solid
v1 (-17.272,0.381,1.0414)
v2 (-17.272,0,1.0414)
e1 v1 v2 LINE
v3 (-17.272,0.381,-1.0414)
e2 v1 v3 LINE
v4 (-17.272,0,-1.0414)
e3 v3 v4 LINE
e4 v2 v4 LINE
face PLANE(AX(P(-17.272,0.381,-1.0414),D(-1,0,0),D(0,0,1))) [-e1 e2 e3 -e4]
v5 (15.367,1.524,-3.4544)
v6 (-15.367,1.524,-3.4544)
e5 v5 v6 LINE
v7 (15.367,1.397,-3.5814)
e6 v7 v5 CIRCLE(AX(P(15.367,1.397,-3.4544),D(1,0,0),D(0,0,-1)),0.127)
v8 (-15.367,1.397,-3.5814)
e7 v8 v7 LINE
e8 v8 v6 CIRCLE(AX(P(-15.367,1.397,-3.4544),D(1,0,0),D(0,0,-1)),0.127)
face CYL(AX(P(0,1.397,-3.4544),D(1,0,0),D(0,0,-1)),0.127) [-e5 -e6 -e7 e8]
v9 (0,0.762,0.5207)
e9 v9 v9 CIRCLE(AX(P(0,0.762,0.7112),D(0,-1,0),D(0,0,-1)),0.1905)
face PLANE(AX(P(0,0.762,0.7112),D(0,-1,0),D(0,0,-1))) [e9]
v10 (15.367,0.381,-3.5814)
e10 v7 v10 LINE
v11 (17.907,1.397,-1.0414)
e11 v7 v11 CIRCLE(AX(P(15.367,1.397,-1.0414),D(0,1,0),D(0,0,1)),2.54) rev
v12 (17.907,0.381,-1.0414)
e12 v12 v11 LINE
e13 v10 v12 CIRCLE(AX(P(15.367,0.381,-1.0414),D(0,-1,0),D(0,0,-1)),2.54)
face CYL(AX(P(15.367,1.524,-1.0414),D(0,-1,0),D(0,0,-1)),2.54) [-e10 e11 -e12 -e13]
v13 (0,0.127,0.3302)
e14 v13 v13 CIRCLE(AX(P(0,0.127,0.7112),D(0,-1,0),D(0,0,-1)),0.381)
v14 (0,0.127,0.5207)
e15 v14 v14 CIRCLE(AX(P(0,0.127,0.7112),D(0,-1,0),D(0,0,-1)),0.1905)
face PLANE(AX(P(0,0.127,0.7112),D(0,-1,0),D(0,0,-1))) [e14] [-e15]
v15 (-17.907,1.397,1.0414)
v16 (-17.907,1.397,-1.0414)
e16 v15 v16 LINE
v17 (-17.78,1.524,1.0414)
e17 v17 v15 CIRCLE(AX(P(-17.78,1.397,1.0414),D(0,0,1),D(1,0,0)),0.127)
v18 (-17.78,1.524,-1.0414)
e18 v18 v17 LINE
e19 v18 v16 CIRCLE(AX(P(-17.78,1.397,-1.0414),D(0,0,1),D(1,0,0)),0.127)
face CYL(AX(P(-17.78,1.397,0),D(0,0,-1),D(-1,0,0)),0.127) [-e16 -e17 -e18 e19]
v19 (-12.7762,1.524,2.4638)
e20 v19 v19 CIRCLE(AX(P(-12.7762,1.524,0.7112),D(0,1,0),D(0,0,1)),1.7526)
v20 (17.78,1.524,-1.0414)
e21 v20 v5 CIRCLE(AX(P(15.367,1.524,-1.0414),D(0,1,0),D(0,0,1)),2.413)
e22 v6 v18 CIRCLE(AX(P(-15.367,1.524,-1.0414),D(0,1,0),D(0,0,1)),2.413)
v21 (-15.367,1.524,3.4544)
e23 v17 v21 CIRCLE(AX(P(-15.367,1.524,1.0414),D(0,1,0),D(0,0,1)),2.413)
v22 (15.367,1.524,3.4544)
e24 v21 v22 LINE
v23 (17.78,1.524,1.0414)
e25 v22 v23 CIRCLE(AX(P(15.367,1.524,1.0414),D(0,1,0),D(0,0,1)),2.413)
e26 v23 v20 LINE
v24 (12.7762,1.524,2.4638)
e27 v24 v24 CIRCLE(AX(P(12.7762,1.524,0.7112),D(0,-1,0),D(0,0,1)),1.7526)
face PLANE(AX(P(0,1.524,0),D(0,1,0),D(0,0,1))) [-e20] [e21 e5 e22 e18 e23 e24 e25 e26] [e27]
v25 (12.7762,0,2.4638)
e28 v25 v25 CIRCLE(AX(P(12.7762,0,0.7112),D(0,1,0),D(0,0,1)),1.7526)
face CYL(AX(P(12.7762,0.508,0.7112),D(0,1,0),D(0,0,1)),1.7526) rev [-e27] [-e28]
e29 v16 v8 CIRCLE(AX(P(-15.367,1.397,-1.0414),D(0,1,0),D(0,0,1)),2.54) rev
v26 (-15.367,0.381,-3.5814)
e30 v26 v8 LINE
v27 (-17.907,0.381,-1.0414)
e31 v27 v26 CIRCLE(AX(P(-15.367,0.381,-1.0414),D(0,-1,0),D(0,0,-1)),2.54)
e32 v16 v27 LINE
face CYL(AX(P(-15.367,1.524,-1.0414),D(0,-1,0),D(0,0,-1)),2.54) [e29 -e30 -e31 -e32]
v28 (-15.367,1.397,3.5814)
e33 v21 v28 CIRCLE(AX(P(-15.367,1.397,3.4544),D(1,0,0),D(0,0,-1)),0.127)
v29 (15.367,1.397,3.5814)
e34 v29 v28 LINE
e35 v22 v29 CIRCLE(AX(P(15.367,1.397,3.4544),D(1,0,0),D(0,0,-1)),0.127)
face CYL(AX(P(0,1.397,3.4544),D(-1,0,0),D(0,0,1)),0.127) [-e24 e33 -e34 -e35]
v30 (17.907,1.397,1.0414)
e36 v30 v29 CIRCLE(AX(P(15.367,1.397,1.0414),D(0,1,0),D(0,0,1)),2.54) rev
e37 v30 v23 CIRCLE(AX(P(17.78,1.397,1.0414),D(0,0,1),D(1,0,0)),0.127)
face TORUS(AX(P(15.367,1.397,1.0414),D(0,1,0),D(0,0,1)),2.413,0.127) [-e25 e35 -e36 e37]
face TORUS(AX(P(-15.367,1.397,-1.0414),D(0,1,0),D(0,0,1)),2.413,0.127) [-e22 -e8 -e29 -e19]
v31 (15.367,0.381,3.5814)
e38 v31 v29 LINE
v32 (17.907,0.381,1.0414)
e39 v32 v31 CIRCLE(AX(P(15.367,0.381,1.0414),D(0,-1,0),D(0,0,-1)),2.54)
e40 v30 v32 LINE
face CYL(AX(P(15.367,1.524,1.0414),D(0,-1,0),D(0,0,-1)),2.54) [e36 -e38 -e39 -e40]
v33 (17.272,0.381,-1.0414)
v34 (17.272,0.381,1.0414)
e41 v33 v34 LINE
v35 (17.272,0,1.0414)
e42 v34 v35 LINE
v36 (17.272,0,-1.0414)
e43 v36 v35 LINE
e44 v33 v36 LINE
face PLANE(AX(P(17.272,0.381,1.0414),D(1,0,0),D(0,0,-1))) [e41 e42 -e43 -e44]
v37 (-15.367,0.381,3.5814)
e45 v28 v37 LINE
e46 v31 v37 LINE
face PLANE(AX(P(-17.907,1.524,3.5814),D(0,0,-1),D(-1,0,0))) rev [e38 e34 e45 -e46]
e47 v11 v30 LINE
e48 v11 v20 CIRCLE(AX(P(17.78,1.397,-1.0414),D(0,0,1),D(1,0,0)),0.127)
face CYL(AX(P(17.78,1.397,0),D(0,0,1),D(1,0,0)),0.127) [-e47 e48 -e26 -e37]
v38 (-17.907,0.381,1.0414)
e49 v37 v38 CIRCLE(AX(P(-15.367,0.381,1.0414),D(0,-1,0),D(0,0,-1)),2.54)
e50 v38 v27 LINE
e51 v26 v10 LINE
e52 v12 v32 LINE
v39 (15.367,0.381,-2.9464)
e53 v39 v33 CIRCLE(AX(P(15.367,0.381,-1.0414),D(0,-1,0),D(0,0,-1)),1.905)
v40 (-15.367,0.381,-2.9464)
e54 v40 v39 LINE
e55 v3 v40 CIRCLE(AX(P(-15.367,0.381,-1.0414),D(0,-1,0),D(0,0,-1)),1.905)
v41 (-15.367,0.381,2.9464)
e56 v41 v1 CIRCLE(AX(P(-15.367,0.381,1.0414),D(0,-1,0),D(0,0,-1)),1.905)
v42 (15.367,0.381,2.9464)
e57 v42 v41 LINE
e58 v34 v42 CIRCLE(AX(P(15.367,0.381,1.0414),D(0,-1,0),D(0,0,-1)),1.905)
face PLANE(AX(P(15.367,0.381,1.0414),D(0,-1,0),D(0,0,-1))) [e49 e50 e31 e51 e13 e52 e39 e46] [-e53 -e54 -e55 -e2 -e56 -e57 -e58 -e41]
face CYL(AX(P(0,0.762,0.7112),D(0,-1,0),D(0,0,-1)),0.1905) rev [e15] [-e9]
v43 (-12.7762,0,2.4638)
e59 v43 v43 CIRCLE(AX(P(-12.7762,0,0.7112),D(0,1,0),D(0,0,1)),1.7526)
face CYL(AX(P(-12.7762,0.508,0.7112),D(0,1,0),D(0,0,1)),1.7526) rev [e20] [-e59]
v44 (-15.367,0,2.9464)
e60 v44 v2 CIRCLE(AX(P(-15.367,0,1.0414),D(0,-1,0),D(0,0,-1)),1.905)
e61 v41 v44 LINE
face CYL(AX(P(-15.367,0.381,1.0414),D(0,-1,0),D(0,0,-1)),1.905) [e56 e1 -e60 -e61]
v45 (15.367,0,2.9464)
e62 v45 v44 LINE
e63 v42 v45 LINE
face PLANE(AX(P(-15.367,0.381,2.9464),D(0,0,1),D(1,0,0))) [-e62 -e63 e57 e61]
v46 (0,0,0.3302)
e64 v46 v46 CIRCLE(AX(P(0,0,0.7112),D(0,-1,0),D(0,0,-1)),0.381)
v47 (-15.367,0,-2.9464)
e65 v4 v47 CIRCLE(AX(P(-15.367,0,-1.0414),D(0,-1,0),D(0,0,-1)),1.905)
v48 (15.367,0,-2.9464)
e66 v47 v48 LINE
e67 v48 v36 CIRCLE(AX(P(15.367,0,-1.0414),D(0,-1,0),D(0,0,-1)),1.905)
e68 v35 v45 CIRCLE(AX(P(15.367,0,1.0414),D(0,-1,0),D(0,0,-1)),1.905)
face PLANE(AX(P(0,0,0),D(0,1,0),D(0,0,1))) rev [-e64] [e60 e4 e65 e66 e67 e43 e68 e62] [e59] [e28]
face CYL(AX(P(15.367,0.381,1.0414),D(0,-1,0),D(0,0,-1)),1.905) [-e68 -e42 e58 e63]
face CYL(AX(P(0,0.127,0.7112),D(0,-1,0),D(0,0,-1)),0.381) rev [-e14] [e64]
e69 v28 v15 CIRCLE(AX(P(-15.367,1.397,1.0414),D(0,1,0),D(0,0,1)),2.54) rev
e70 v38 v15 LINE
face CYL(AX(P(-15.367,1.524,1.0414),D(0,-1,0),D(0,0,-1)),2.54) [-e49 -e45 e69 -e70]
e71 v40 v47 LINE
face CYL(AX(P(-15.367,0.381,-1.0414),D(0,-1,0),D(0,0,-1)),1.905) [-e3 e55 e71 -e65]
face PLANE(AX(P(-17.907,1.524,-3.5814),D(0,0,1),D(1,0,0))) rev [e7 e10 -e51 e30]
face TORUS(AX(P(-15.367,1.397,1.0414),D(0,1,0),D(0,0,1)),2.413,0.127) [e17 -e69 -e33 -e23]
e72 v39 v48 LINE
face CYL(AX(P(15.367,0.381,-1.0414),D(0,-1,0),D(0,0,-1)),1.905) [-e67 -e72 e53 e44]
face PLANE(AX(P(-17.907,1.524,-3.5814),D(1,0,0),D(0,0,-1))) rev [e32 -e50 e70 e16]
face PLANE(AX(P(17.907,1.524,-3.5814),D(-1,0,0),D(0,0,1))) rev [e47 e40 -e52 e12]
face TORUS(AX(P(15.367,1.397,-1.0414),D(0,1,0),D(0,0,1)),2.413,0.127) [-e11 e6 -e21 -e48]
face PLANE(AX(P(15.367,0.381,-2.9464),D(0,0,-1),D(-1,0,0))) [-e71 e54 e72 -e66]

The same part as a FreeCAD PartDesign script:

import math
import FreeCAD as App
import Part
import Sketcher

V = App.Vector
Q = App.Units.Quantity


def edges_at(feature, points):
    """Names of the edges that pass closest to the given points."""
    edges = feature.Shape.Edges
    near = lambda p: min(range(len(edges)), key=lambda i: edges[i].distToShape(Part.Vertex(*p))[0])
    return sorted({f"Edge{near(p) + 1}" for p in points})


def add_polygon(sketch, points):
    """Adds a closed chain of lines whose ends are joined by coincident constraints."""
    first, n = sketch.GeometryCount, len(points)
    for a, b in zip(points, points[1:] + points[:1]):
        sketch.addGeometry(Part.LineSegment(App.Vector(*a, 0), App.Vector(*b, 0)), False)
    for i in range(n):
        sketch.addConstraint(Sketcher.Constraint("Coincident", first + i, 2, first + (i + 1) % n, 1))

doc = App.newDocument("Part")
body = doc.addObject("PartDesign::Body", "Body")

# Sketch on XZ plane
sketch1 = body.newObject("Sketcher::SketchObject", "Sketch")
sketch1.AttachmentSupport = (doc.getObject("XZ_Plane"), [""])
sketch1.MapMode = "FlatFace"
add_polygon(sketch1, [(-18, -4), (-18, 4), (18, 4), (18, -4)])  # lines 0-3
sketch1.addConstraint(Sketcher.Constraint("Vertical", 0))
sketch1.addConstraint(Sketcher.Constraint("Horizontal", 1))
sketch1.addConstraint(Sketcher.Constraint("Vertical", 2))
sketch1.addConstraint(Sketcher.Constraint("Horizontal", 3))
sketch1.addConstraint(Sketcher.Constraint("Symmetric", 0, 2, 2, 2, -1, 1))
sketch1.addConstraint(Sketcher.Constraint("DistanceX", 1, 1, 1, 2, Q("1.41 in")))
sketch1.addConstraint(Sketcher.Constraint("DistanceY", 0, 1, 0, 2, Q("0.282 in")))
pad1 = body.newObject("PartDesign::Pad", "Pad")
pad1.Profile = sketch1
pad1.Length = Q("0.06 in")
pad1.Reversed = True
doc.recompute()

fillet = body.newObject("PartDesign::Fillet", "Fillet")
fillet.Base = (pad1, edges_at(pad1, [
    (-17.907, 0.762, -3.581),
    (17.907, 0.762, -3.581),
    (17.907, 0.762, 3.581),
    (-17.907, 0.762, 3.581),
]))
fillet.Radius = Q("0.1 in")
doc.recompute()

fillet2 = body.newObject("PartDesign::Fillet", "Fillet001")
fillet2.Base = (fillet, edges_at(fillet, [
    (-17.907, 1.524, 0),
    (0, 1.524, -3.581),
    (0, 1.524, 3.581),
    (17.907, 1.524, 0),
    (17.163, 1.524, 2.837),
    (17.163, 1.524, -2.837),
    (-17.163, 1.524, 2.837),
    (-17.163, 1.524, -2.837),
]))
fillet2.Radius = Q("0.005 in")

# Sketch on XZ plane
sketch2 = body.newObject("Sketcher::SketchObject", "Sketch001")
sketch2.AttachmentSupport = (doc.getObject("XZ_Plane"), [""])
sketch2.MapMode = "FlatFace"
sketch2.AttachmentOffset = App.Placement(V(0, 0, -0.015 * 25.4), App.Rotation())
sketch2.addGeometry(Part.LineSegment(V(-15.37, 2.95, 0), V(-15.37, 3.2, 0)), False)
sketch2.addGeometry(Part.ArcOfCircle(Part.Circle(V(-15.37, 1.04, 0), V(0, 0, 1), 2.16), math.radians(90), math.radians(180)), False)
sketch2.addGeometry(Part.LineSegment(V(-17.53, 1.04, 0), V(-17.53, -1.04, 0)), False)
sketch2.addGeometry(Part.ArcOfCircle(Part.Circle(V(-15.37, -1.04, 0), V(0, 0, 1), 2.16), math.radians(180), math.radians(270)), False)
sketch2.addGeometry(Part.LineSegment(V(-15.37, -3.2, 0), V(-15.37, -2.95, 0)), False)
sketch2.addGeometry(Part.ArcOfCircle(Part.Circle(V(-15.37, -1.04, 0), V(0, 0, 1), 1.91), math.radians(-180), math.radians(-90)), False)
sketch2.addGeometry(Part.LineSegment(V(-17.27, -1.04, 0), V(-17.27, 1.04, 0)), False)
sketch2.addGeometry(Part.ArcOfCircle(Part.Circle(V(-15.37, 1.04, 0), V(0, 0, 1), 1.91), math.radians(90), math.radians(180)), False)
sketch2.addConstraint(Sketcher.Constraint("Coincident", 0, 2, 1, 1))
sketch2.addConstraint(Sketcher.Constraint("Tangent", 1, 2, 2, 1))
sketch2.addConstraint(Sketcher.Constraint("Tangent", 2, 2, 3, 1))
sketch2.addConstraint(Sketcher.Constraint("Coincident", 3, 2, 4, 1))
sketch2.addConstraint(Sketcher.Constraint("Coincident", 4, 2, 5, 2))
sketch2.addConstraint(Sketcher.Constraint("Tangent", 5, 1, 6, 1))
sketch2.addConstraint(Sketcher.Constraint("Tangent", 6, 2, 7, 2))
sketch2.addConstraint(Sketcher.Constraint("Coincident", 7, 1, 0, 1))
sketch2.addConstraint(Sketcher.Constraint("Vertical", 0))
sketch2.addConstraint(Sketcher.Constraint("Vertical", 2))
sketch2.addConstraint(Sketcher.Constraint("Vertical", 4))
sketch2.addConstraint(Sketcher.Constraint("Vertical", 6))
sketch2.addConstraint(Sketcher.Constraint("Coincident", 5, 3, 3, 3))
sketch2.addConstraint(Sketcher.Constraint("Coincident", 7, 3, 1, 3))
sketch2.addConstraint(Sketcher.Constraint("Equal", 1, 3))
sketch2.addConstraint(Sketcher.Constraint("Symmetric", 0, 2, 3, 2, -1))
sketch2.addConstraint(Sketcher.Constraint("Vertical", 7, 3, 0, 2))
sketch2.addConstraint(Sketcher.Constraint("Radius", 1, Q("0.085 in")))
sketch2.addConstraint(Sketcher.Constraint("Radius", 5, Q("0.075 in")))
sketch2.addConstraint(Sketcher.Constraint("DistanceY", 2, 2, 2, 1, Q("0.082 in")))
sketch2.addConstraint(Sketcher.Constraint("DistanceX", 1, 2, -1, 1, Q("0.69 in")))
pad2 = body.newObject("PartDesign::Pad", "Pad001")
pad2.Profile = sketch2
pad2.Length = Q("0.015 in")
doc.recompute()

mirrored = body.newObject("PartDesign::Mirrored", "Mirrored")
mirrored.Originals = [pad2]
mirrored.MirrorPlane = (doc.getObject("YZ_Plane"), [""])
body.Tip = mirrored

# Sketch on XZ plane
sketch3 = body.newObject("Sketcher::SketchObject", "Sketch002")
sketch3.AttachmentSupport = (doc.getObject("XZ_Plane"), [""])
sketch3.MapMode = "FlatFace"
sketch3.AttachmentOffset = App.Placement(V(0, 0, -0.06 * 25.4), App.Rotation())
sketch3.addGeometry(Part.Circle(V(-12.8, 0.7, 0), V(0, 0, 1), 1.3), False)
sketch3.addConstraint(Sketcher.Constraint("Diameter", 0, Q("0.101 in")))
sketch3.addConstraint(Sketcher.Constraint("DistanceX", 0, 3, -1, 1, Q("0.503 in")))
sketch3.addConstraint(Sketcher.Constraint("DistanceY", -1, 1, 0, 3, Q("0.028 in")))
pocket1 = body.newObject("PartDesign::Pocket", "Pocket")
pocket1.Profile = sketch3
pocket1.Length = Q("0.1 in")
pocket1.Reversed = True

# Sketch on XZ plane
sketch4 = body.newObject("Sketcher::SketchObject", "Sketch003")
sketch4.AttachmentSupport = (doc.getObject("XZ_Plane"), [""])
sketch4.MapMode = "FlatFace"
sketch4.AttachmentOffset = App.Placement(V(0, 0, -0.06 * 25.4), App.Rotation())
sketch4.addGeometry(Part.Circle(V(-12.8, 0.7, 0), V(0, 0, 1), 1.8), False)
sketch4.addConstraint(Sketcher.Constraint("Diameter", 0, Q("0.138 in")))
sketch4.addConstraint(Sketcher.Constraint("DistanceX", 0, 3, -1, 1, Q("0.503 in")))
sketch4.addConstraint(Sketcher.Constraint("DistanceY", -1, 1, 0, 3, Q("0.028 in")))
pocket2 = body.newObject("PartDesign::Pocket", "Pocket001")
pocket2.Profile = sketch4
pocket2.Length = Q("0.04 in")
pocket2.Reversed = True
doc.recompute()

mirrored2 = body.newObject("PartDesign::Mirrored", "Mirrored001")
mirrored2.Originals = [pocket1, pocket2]
mirrored2.MirrorPlane = (doc.getObject("YZ_Plane"), [""])
body.Tip = mirrored2

# Sketch on XZ plane
sketch5 = body.newObject("Sketcher::SketchObject", "Sketch004")
sketch5.AttachmentSupport = (doc.getObject("XZ_Plane"), [""])
sketch5.MapMode = "FlatFace"
sketch5.AttachmentOffset = App.Placement(V(0, 0, -0.015 * 25.4), App.Rotation())
sketch5.addGeometry(Part.LineSegment(V(17.9, -1, 0), V(17.9, 1, 0)), False)
sketch5.addGeometry(Part.ArcOfCircle(Part.Circle(V(15.4, 1, 0), V(0, 0, 1), 2.5), math.radians(0), math.radians(90)), False)
sketch5.addGeometry(Part.LineSegment(V(15.4, 3.6, 0), V(-15.4, 3.6, 0)), False)
sketch5.addGeometry(Part.ArcOfCircle(Part.Circle(V(-15.4, 1, 0), V(0, 0, 1), 2.5), math.radians(90), math.radians(180)), False)
sketch5.addGeometry(Part.LineSegment(V(-17.9, 1, 0), V(-17.9, -1, 0)), False)
sketch5.addGeometry(Part.ArcOfCircle(Part.Circle(V(-15.4, -1, 0), V(0, 0, 1), 2.5), math.radians(-180), math.radians(-90)), False)
sketch5.addGeometry(Part.LineSegment(V(-15.4, -3.6, 0), V(15.4, -3.6, 0)), False)
sketch5.addGeometry(Part.ArcOfCircle(Part.Circle(V(15.4, -1, 0), V(0, 0, 1), 2.5), math.radians(-90), math.radians(0)), False)
sketch5.addGeometry(Part.LineSegment(V(-15.4, 2.9, 0), V(15.4, 2.9, 0)), False)
sketch5.addGeometry(Part.ArcOfCircle(Part.Circle(V(15.4, 1, 0), V(0, 0, 1), 1.9), math.radians(0), math.radians(90)), False)
sketch5.addGeometry(Part.LineSegment(V(17.3, 1, 0), V(17.3, -1, 0)), False)
sketch5.addGeometry(Part.ArcOfCircle(Part.Circle(V(15.4, -1, 0), V(0, 0, 1), 1.9), math.radians(-90), math.radians(0)), False)
sketch5.addGeometry(Part.LineSegment(V(15.4, -2.9, 0), V(-15.4, -2.9, 0)), False)
sketch5.addGeometry(Part.ArcOfCircle(Part.Circle(V(-15.4, -1, 0), V(0, 0, 1), 1.9), math.radians(-180), math.radians(-90)), False)
sketch5.addGeometry(Part.LineSegment(V(-17.3, -1, 0), V(-17.3, 1, 0)), False)
sketch5.addGeometry(Part.ArcOfCircle(Part.Circle(V(-15.4, 1, 0), V(0, 0, 1), 1.9), math.radians(90), math.radians(180)), False)
sketch5.addConstraint(Sketcher.Constraint("Tangent", 0, 2, 1, 1))
sketch5.addConstraint(Sketcher.Constraint("Tangent", 1, 2, 2, 1))
sketch5.addConstraint(Sketcher.Constraint("Tangent", 2, 2, 3, 1))
sketch5.addConstraint(Sketcher.Constraint("Tangent", 3, 2, 4, 1))
sketch5.addConstraint(Sketcher.Constraint("Tangent", 4, 2, 5, 1))
sketch5.addConstraint(Sketcher.Constraint("Tangent", 5, 2, 6, 1))
sketch5.addConstraint(Sketcher.Constraint("Tangent", 6, 2, 7, 1))
sketch5.addConstraint(Sketcher.Constraint("Tangent", 7, 2, 0, 1))
sketch5.addConstraint(Sketcher.Constraint("Tangent", 8, 2, 9, 2))
sketch5.addConstraint(Sketcher.Constraint("Tangent", 9, 1, 10, 1))
sketch5.addConstraint(Sketcher.Constraint("Tangent", 10, 2, 11, 2))
sketch5.addConstraint(Sketcher.Constraint("Tangent", 11, 1, 12, 1))
sketch5.addConstraint(Sketcher.Constraint("Tangent", 12, 2, 13, 2))
sketch5.addConstraint(Sketcher.Constraint("Tangent", 13, 1, 14, 1))
sketch5.addConstraint(Sketcher.Constraint("Tangent", 14, 2, 15, 2))
sketch5.addConstraint(Sketcher.Constraint("Tangent", 15, 1, 8, 1))
sketch5.addConstraint(Sketcher.Constraint("Vertical", 0))
sketch5.addConstraint(Sketcher.Constraint("Horizontal", 2))
sketch5.addConstraint(Sketcher.Constraint("Vertical", 4))
sketch5.addConstraint(Sketcher.Constraint("Horizontal", 6))
sketch5.addConstraint(Sketcher.Constraint("Horizontal", 8))
sketch5.addConstraint(Sketcher.Constraint("Vertical", 10))
sketch5.addConstraint(Sketcher.Constraint("Horizontal", 12))
sketch5.addConstraint(Sketcher.Constraint("Vertical", 14))
sketch5.addConstraint(Sketcher.Constraint("Coincident", 9, 3, 1, 3))
sketch5.addConstraint(Sketcher.Constraint("Coincident", 11, 3, 7, 3))
sketch5.addConstraint(Sketcher.Constraint("Coincident", 13, 3, 5, 3))
sketch5.addConstraint(Sketcher.Constraint("Equal", 1, 3))
sketch5.addConstraint(Sketcher.Constraint("Equal", 3, 5))
sketch5.addConstraint(Sketcher.Constraint("Equal", 5, 7))
sketch5.addConstraint(Sketcher.Constraint("Equal", 13, 15))
sketch5.addConstraint(Sketcher.Constraint("Symmetric", 1, 3, 5, 3, -1, 1))
sketch5.addConstraint(Sketcher.Constraint("Radius", 1, Q("0.1 in")))
sketch5.addConstraint(Sketcher.Constraint("Radius", 9, Q("0.075 in")))
sketch5.addConstraint(Sketcher.Constraint("DistanceX", 2, 2, 2, 1, Q("1.21 in")))
sketch5.addConstraint(Sketcher.Constraint("DistanceY", 0, 1, 0, 2, Q("0.082 in")))
pocket3 = body.newObject("PartDesign::Pocket", "Pocket002")
pocket3.Profile = sketch5
pocket3.Length = Q("0.015 in")
pocket3.Reversed = True

# Sketch on XZ plane
sketch6 = body.newObject("Sketcher::SketchObject", "Sketch005")
sketch6.AttachmentSupport = (doc.getObject("XZ_Plane"), [""])
sketch6.MapMode = "FlatFace"
sketch6.AttachmentOffset = App.Placement(V(0, 0, -0.02 * 25.4), App.Rotation())
sketch6.addGeometry(Part.Circle(V(-12.8, 0.7, 0), V(0, 0, 1), 1.8), False)
sketch6.addConstraint(Sketcher.Constraint("Diameter", 0, Q("0.138 in")))
sketch6.addConstraint(Sketcher.Constraint("DistanceX", 0, 3, -1, 1, Q("0.503 in")))
sketch6.addConstraint(Sketcher.Constraint("DistanceY", -1, 1, 0, 3, Q("0.028 in")))
pocket4 = body.newObject("PartDesign::Pocket", "Pocket003")
pocket4.Profile = sketch6
pocket4.Type = "ThroughAll"
pocket4.Reversed = True

# Sketch on XZ plane
sketch7 = body.newObject("Sketcher::SketchObject", "Sketch006")
sketch7.AttachmentSupport = (doc.getObject("XZ_Plane"), [""])
sketch7.MapMode = "FlatFace"
sketch7.AttachmentOffset = App.Placement(V(0, 0, -0.06 * 25.4), App.Rotation())
sketch7.addGeometry(Part.Circle(V(12.8, 0.7, 0), V(0, 0, 1), 1.8), False)
sketch7.addConstraint(Sketcher.Constraint("Diameter", 0, Q("0.138 in")))
sketch7.addConstraint(Sketcher.Constraint("DistanceX", -1, 1, 0, 3, Q("0.503 in")))
sketch7.addConstraint(Sketcher.Constraint("DistanceY", -1, 1, 0, 3, Q("0.028 in")))
pocket5 = body.newObject("PartDesign::Pocket", "Pocket004")
pocket5.Profile = sketch7
pocket5.Type = "ThroughAll"
pocket5.Reversed = True

# Sketch on XZ plane
sketch8 = body.newObject("Sketcher::SketchObject", "Sketch007")
sketch8.AttachmentSupport = (doc.getObject("XZ_Plane"), [""])
sketch8.MapMode = "FlatFace"
sketch8.addGeometry(Part.Circle(V(0, 0.71, 0), V(0, 0, 1), 0.38), False)
sketch8.addConstraint(Sketcher.Constraint("PointOnObject", 0, 3, -2))
sketch8.addConstraint(Sketcher.Constraint("Diameter", 0, Q("0.03 in")))
sketch8.addConstraint(Sketcher.Constraint("DistanceY", -1, 1, 0, 3, Q("0.028 in")))
pocket6 = body.newObject("PartDesign::Pocket", "Pocket005")
pocket6.Profile = sketch8
pocket6.Length = Q("0.005 in")

# Sketch on XZ plane
sketch9 = body.newObject("Sketcher::SketchObject", "Sketch008")
sketch9.AttachmentSupport = (doc.getObject("XZ_Plane"), [""])
sketch9.MapMode = "FlatFace"
sketch9.addGeometry(Part.Circle(V(0, 0.71, 0), V(0, 0, 1), 0.19), False)
sketch9.addConstraint(Sketcher.Constraint("PointOnObject", 0, 3, -2))
sketch9.addConstraint(Sketcher.Constraint("Diameter", 0, Q("0.015 in")))
sketch9.addConstraint(Sketcher.Constraint("DistanceY", -1, 1, 0, 3, Q("0.028 in")))
pocket7 = body.newObject("PartDesign::Pocket", "Pocket006")
pocket7.Profile = sketch9
pocket7.Length = Q("0.03 in")

doc.recompute()
